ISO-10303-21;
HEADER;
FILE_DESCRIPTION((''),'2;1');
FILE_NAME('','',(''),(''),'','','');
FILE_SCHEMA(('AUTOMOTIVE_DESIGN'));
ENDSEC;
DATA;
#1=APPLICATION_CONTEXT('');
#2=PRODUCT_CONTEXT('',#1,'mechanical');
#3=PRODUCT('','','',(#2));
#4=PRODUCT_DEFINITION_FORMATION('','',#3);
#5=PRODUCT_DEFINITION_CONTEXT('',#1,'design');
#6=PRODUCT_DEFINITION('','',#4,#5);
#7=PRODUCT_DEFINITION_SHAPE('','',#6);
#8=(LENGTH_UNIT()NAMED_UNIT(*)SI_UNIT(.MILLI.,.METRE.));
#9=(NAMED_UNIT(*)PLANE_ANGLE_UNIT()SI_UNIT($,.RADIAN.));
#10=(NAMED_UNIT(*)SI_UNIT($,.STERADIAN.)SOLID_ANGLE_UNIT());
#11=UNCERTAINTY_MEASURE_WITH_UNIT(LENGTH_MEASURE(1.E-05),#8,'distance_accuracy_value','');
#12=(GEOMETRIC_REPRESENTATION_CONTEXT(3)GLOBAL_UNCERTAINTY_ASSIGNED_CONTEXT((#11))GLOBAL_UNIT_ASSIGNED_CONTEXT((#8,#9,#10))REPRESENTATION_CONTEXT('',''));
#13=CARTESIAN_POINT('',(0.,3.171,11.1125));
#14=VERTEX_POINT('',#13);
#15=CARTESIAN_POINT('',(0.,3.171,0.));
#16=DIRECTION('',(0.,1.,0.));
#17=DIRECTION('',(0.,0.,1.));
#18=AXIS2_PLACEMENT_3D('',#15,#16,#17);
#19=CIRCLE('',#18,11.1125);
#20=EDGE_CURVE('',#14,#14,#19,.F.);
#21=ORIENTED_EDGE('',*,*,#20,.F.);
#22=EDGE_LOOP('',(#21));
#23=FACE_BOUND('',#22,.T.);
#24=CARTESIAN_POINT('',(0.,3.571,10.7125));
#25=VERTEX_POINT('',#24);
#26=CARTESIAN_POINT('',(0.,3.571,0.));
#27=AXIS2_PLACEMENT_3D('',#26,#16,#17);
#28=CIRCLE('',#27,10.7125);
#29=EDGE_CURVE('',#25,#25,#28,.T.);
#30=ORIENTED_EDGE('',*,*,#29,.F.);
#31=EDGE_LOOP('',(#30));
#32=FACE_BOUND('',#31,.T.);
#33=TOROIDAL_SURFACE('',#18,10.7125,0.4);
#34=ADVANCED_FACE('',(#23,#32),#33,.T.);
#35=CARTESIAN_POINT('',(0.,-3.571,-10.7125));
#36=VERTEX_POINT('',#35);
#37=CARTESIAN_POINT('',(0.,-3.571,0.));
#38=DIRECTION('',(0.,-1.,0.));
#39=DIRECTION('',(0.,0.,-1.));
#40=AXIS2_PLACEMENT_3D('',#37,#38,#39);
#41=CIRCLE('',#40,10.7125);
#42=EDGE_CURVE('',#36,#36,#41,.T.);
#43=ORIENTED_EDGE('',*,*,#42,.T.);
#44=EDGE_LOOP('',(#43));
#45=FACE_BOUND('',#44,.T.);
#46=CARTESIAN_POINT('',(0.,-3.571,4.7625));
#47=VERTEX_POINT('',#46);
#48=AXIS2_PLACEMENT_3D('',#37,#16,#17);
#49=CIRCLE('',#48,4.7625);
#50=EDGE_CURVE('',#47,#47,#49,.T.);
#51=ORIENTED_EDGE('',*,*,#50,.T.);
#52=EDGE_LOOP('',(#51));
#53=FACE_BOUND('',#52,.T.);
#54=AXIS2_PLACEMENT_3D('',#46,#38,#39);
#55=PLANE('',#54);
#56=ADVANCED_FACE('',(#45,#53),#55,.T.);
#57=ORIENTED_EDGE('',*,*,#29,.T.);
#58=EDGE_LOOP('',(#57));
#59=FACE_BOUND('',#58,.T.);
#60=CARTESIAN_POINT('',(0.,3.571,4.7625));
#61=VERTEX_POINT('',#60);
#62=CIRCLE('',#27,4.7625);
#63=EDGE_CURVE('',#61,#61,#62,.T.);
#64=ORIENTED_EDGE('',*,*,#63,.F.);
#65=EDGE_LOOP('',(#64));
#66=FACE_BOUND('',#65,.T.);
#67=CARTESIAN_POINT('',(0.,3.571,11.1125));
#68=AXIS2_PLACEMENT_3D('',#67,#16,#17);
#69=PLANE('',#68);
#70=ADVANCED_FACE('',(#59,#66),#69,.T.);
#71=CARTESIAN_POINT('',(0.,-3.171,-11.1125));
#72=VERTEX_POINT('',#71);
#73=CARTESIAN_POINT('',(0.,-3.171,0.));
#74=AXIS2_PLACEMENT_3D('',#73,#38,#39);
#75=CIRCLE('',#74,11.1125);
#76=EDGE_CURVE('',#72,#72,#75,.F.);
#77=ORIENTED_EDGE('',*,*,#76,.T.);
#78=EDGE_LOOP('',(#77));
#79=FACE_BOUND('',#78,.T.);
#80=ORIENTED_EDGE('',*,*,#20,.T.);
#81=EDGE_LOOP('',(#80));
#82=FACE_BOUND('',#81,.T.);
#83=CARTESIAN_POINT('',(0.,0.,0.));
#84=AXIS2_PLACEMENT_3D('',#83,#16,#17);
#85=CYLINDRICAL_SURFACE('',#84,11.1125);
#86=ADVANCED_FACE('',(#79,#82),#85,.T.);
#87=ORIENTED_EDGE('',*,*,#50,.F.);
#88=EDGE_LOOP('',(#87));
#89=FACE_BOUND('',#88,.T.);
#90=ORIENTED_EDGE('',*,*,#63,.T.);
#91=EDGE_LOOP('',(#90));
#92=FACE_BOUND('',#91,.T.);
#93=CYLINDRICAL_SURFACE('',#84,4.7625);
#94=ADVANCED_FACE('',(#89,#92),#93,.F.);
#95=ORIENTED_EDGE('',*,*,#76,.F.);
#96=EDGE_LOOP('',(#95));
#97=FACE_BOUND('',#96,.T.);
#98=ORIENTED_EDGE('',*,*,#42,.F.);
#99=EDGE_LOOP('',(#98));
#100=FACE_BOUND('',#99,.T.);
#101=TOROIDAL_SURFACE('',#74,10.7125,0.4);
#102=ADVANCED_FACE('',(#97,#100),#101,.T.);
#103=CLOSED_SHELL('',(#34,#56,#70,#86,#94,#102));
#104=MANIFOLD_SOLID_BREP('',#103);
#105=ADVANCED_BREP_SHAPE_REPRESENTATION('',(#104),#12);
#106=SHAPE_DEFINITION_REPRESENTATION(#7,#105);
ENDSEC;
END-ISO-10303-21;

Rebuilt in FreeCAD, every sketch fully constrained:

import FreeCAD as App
import Part
import Sketcher
Q = App.Units.Quantity


def edges_at(feature, points):
    """Names of the edges that pass closest to the given points."""
    edges = feature.Shape.Edges
    near = lambda p: min(range(len(edges)), key=lambda i: edges[i].distToShape(Part.Vertex(*p))[0])
    return sorted({f"Edge{near(p) + 1}" for p in points})

doc = App.newDocument("Part")
body = doc.addObject("PartDesign::Body", "Body")

# Sketch on YZ plane
sketch1 = body.newObject("Sketcher::SketchObject", "Sketch")
sketch1.AttachmentSupport = (doc.getObject("YZ_Plane"), [""])
sketch1.MapMode = "FlatFace"
sketch1.addGeometry([
    Part.LineSegment(App.Vector(3.571, 11.1125, 0), App.Vector(-3.571, 11.1125, 0)),
    Part.LineSegment(App.Vector(-3.571, 11.1125, 0), App.Vector(-3.571, 4.7625, 0)),
    Part.LineSegment(App.Vector(-3.571, 4.7625, 0), App.Vector(3.571, 4.7625, 0)),
    Part.LineSegment(App.Vector(3.571, 4.7625, 0), App.Vector(3.571, 11.1125, 0)),
], False)
sketch1.addConstraint([
    Sketcher.Constraint("Coincident", 0, 2, 1, 1),
    Sketcher.Constraint("Coincident", 1, 2, 2, 1),
    Sketcher.Constraint("Coincident", 2, 2, 3, 1),
    Sketcher.Constraint("Coincident", 3, 2, 0, 1),
    Sketcher.Constraint("Horizontal", 0),
    Sketcher.Constraint("Vertical", 1),
    Sketcher.Constraint("Horizontal", 2),
    Sketcher.Constraint("Vertical", 3),
    Sketcher.Constraint("DistanceY", 1, 2, 1, 1, Q("6.35 mm")),
    Sketcher.Constraint("DistanceX", 0, 2, 0, 1, Q("7.142 mm")),
    Sketcher.Constraint("DistanceX", 0, 2, -1, 1, Q("3.571 mm")),
    Sketcher.Constraint("DistanceY", -1, 1, 0, 2, Q("11.1125 mm")),
])
revolution = body.newObject("PartDesign::Revolution", "Revolution")
revolution.Profile = sketch1
revolution.ReferenceAxis = (sketch1, ["H_Axis"])
revolution.Angle = 360
doc.recompute()

fillet = body.newObject("PartDesign::Fillet", "Fillet")
fillet.Base = (revolution, edges_at(revolution, [(0, -3.571, -11.113), (0, 3.571, -11.113)]))
fillet.Radius = 0.4

doc.recompute()
